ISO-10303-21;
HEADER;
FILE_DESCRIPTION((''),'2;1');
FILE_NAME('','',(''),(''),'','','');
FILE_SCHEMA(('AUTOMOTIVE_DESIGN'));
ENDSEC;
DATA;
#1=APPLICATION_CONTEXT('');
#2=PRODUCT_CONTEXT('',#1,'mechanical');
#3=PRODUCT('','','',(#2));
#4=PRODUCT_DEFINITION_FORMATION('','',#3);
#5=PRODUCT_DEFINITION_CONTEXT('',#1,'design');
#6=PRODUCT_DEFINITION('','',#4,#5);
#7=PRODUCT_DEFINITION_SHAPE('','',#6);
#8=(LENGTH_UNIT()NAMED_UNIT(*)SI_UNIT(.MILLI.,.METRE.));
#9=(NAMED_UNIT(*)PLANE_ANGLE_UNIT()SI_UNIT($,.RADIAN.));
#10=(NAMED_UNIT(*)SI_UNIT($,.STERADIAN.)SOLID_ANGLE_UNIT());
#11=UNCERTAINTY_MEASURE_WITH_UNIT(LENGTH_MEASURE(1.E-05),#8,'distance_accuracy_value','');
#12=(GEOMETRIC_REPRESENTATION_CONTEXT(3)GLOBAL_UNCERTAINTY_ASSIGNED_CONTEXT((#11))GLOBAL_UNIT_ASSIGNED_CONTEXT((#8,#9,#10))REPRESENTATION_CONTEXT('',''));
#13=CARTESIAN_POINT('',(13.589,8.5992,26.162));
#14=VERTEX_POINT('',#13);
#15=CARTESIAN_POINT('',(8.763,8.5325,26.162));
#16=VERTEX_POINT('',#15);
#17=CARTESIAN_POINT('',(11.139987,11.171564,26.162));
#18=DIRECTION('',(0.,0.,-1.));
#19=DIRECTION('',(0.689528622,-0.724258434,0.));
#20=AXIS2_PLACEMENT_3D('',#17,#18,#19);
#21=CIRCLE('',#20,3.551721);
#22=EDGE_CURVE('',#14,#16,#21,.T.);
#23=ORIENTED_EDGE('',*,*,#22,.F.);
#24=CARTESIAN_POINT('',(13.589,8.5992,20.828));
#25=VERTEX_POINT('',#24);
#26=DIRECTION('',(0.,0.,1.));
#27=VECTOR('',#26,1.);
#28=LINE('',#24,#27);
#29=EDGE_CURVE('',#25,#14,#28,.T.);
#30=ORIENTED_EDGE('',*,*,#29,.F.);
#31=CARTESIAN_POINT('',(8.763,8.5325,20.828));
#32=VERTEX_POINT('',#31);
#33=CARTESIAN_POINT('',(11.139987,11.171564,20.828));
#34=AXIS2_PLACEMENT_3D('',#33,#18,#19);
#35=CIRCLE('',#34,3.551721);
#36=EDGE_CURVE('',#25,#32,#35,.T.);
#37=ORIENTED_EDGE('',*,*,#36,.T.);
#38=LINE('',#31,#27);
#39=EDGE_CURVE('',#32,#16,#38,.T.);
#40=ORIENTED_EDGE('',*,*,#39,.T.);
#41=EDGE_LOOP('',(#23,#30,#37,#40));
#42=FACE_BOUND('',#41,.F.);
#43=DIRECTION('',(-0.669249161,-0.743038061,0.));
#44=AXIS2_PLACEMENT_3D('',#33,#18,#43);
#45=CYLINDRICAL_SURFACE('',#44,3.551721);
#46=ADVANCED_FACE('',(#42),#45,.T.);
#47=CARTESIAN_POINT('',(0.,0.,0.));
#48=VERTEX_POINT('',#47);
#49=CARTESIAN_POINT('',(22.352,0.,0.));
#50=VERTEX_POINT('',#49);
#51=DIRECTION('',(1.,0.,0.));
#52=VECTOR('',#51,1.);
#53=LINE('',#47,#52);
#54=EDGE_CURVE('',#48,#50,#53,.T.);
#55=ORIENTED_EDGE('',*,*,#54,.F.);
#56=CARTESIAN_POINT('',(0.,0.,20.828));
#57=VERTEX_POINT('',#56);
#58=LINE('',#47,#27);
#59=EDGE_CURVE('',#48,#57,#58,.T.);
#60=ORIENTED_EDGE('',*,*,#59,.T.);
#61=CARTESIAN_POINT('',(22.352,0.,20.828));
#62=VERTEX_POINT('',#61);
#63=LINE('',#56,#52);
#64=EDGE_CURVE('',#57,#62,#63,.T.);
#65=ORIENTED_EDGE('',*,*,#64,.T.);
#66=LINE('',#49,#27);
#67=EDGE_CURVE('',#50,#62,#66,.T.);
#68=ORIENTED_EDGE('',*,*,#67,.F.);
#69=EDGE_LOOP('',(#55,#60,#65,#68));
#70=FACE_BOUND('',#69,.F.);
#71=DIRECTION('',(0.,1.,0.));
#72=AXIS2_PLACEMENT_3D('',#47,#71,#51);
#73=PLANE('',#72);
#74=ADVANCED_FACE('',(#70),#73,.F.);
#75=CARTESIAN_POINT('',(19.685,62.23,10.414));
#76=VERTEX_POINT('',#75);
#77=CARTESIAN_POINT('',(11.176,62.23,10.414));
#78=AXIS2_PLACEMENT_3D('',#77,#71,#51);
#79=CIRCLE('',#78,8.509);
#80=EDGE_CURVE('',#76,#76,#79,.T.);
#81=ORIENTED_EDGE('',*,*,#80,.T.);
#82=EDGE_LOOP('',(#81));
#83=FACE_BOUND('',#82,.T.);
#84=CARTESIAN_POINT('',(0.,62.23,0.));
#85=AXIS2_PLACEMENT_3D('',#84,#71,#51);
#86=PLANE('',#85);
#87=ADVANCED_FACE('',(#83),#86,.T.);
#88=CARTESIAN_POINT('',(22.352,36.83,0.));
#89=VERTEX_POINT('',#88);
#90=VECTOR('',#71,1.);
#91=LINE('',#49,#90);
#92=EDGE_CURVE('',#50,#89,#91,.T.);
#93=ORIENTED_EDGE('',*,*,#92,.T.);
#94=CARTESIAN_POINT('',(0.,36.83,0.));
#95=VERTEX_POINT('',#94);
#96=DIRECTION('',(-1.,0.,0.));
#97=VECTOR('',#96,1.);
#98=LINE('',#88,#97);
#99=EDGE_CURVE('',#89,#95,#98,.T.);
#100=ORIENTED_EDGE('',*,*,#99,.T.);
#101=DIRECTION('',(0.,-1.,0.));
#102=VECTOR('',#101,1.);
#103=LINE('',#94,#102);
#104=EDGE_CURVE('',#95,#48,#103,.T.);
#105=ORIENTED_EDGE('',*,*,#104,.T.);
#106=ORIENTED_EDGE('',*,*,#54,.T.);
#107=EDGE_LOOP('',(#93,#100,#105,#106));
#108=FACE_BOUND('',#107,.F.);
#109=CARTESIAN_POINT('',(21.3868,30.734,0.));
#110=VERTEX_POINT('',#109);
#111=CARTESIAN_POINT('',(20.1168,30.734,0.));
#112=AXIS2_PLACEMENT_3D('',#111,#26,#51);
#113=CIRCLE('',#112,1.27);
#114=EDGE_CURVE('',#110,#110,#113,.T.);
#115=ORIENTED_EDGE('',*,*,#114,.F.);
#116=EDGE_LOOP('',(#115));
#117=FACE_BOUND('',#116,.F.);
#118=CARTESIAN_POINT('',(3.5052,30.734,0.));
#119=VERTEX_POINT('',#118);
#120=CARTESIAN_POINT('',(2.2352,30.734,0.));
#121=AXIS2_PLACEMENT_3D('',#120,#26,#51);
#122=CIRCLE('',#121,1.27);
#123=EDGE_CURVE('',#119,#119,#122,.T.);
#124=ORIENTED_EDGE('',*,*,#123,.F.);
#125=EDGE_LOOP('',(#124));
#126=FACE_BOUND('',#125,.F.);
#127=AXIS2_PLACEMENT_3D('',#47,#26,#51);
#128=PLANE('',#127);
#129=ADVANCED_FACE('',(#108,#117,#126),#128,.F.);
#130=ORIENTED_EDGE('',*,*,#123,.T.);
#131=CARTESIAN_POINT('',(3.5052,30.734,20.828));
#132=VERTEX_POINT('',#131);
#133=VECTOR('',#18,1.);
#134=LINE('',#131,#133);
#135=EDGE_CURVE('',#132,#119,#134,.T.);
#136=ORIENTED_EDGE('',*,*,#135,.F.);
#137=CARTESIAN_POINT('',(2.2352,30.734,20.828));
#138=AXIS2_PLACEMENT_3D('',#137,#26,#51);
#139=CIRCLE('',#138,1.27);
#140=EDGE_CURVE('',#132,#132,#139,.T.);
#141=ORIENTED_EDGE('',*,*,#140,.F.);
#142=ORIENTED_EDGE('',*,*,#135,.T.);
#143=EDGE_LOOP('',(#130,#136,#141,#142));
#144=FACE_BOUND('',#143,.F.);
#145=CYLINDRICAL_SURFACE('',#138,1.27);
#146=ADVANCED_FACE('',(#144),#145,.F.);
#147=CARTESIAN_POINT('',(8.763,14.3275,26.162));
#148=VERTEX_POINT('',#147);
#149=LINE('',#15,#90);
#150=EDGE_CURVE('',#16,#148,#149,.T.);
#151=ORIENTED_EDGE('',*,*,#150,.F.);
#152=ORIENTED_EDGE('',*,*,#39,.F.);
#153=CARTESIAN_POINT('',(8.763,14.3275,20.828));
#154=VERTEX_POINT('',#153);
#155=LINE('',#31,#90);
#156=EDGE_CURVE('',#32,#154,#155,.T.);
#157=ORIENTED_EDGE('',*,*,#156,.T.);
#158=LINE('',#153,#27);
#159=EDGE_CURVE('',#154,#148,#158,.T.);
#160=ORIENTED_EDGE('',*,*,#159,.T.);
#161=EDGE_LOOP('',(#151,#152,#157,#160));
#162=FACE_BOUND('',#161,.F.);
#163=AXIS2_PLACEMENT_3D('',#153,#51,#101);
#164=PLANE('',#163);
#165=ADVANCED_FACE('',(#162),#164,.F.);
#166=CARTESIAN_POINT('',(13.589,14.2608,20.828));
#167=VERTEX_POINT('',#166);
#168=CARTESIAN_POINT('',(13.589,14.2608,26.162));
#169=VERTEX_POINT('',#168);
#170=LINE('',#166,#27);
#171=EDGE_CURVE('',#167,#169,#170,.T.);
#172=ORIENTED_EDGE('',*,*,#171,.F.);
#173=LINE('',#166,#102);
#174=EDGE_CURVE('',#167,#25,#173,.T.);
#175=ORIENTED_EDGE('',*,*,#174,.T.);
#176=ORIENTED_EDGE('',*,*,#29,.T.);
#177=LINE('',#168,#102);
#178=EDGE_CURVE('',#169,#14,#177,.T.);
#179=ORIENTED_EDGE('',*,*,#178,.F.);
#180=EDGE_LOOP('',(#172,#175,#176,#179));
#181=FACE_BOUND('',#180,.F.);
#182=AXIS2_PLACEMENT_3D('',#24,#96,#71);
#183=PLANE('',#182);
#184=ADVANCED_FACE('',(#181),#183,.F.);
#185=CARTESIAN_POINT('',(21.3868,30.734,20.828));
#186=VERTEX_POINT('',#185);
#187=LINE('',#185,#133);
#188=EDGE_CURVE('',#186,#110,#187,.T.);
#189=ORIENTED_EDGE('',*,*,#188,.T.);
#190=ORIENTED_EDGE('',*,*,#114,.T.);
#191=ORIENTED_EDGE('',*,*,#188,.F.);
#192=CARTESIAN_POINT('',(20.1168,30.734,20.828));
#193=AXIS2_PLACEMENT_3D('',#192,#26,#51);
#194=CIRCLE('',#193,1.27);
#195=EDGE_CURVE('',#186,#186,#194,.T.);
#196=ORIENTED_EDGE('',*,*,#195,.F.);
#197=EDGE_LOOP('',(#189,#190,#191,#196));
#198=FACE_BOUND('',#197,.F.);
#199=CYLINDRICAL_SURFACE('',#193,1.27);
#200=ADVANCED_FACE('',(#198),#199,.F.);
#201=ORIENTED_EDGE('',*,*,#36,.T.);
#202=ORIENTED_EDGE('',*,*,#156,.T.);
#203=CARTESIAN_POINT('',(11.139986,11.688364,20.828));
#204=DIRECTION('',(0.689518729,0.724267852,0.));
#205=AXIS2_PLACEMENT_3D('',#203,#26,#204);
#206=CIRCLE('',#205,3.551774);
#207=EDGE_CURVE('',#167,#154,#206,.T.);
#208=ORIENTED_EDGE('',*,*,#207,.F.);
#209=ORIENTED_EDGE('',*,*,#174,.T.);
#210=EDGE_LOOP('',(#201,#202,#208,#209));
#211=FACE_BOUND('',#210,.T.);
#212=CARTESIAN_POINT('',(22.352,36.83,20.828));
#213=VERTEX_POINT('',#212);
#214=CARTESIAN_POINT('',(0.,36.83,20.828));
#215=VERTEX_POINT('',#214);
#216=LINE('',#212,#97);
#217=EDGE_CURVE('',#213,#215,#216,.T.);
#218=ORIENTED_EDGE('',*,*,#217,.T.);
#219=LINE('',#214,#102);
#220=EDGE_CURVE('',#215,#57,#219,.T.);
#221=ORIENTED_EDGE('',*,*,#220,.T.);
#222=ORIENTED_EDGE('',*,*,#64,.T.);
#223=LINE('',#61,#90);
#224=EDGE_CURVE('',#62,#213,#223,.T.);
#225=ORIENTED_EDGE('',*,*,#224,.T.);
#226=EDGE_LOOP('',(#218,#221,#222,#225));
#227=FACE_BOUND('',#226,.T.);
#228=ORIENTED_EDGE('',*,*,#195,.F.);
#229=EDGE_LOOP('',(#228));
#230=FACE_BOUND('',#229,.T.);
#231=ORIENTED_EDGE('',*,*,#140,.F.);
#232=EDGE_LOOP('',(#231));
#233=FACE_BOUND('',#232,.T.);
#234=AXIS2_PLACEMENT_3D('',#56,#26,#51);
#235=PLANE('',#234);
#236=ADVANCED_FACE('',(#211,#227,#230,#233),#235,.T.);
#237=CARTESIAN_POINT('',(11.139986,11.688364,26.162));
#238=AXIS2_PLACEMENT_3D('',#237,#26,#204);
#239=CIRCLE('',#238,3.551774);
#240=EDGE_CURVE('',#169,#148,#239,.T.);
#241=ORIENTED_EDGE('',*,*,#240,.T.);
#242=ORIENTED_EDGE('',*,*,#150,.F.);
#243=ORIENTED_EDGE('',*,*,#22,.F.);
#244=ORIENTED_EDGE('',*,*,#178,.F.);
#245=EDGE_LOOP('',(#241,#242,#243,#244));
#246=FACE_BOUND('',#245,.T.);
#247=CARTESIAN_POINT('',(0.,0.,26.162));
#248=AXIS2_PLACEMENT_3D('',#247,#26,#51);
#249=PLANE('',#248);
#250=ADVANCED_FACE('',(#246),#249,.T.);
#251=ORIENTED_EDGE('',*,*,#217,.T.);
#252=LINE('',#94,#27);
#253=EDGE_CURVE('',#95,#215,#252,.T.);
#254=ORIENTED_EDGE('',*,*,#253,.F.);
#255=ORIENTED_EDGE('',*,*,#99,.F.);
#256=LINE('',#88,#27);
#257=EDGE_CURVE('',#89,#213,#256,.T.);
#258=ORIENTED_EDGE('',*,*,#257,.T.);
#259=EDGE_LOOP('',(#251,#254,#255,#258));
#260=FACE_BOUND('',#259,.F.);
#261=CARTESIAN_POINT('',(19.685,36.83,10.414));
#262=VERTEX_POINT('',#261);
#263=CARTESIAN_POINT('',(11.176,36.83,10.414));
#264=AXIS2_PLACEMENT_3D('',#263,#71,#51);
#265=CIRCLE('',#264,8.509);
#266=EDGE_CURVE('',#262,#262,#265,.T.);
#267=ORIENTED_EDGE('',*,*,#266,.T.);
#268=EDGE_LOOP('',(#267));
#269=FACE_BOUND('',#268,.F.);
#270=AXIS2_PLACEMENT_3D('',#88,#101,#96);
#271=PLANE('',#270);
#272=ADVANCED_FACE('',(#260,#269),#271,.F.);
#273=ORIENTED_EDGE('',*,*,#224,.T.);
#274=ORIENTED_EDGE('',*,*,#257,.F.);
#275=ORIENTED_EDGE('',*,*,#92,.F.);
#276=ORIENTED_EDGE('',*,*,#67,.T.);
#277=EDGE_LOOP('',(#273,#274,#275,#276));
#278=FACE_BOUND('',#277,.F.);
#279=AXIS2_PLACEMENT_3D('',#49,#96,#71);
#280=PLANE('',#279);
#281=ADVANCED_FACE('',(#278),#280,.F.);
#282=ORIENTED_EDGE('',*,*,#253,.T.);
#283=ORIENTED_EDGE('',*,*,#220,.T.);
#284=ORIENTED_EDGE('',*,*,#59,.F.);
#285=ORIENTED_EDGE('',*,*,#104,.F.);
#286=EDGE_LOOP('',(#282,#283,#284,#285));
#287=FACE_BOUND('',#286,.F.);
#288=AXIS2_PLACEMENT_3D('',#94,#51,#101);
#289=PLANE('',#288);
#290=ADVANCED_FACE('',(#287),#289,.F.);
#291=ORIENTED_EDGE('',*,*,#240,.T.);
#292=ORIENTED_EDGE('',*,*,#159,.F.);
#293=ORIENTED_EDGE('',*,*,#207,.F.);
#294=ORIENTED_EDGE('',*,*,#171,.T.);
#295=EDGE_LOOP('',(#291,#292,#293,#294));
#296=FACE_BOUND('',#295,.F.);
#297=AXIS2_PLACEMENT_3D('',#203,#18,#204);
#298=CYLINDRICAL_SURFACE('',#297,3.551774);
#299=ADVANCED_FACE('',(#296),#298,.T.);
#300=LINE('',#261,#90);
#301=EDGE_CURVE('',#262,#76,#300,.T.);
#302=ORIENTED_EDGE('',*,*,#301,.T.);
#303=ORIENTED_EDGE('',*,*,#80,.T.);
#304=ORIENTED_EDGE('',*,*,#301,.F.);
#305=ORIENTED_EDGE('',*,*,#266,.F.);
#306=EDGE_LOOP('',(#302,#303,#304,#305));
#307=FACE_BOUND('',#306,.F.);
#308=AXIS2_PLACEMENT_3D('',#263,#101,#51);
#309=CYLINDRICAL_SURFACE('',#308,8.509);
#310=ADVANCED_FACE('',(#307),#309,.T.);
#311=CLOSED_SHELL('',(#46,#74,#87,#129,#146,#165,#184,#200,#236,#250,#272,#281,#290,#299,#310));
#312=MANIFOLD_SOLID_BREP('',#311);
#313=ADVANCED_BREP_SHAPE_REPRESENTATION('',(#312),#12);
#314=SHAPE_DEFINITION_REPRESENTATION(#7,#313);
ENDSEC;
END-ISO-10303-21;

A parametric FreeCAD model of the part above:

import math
import FreeCAD as App
import Part
import Sketcher

V = App.Vector
Q = App.Units.Quantity

doc = App.newDocument("Part")
body = doc.addObject("PartDesign::Body", "Body")

# Sketch on XY plane
sketch1 = doc.addObject("Sketcher::SketchObject", "Sketch")
body.addObject(sketch1)
sketch1.AttachmentSupport = (doc.XY_Plane, [""])
sketch1.MapMode = "FlatFace"
sketch1.addGeometry(Part.LineSegment(V(0, 36.83, 0), V(0, 0, 0)), False)
sketch1.addGeometry(Part.LineSegment(V(0, 0, 0), V(22.352, 0, 0)), False)
sketch1.addGeometry(Part.LineSegment(V(22.352, 0, 0), V(22.352, 36.83, 0)), False)
sketch1.addGeometry(Part.LineSegment(V(22.352, 36.83, 0), V(0, 36.83, 0)), False)
sketch1.addConstraint(Sketcher.Constraint("Coincident", 0, 2, 1, 1))
sketch1.addConstraint(Sketcher.Constraint("Coincident", 1, 2, 2, 1))
sketch1.addConstraint(Sketcher.Constraint("Coincident", 2, 2, 3, 1))
sketch1.addConstraint(Sketcher.Constraint("Coincident", 3, 2, 0, 1))
sketch1.addConstraint(Sketcher.Constraint("Vertical", 0))
sketch1.addConstraint(Sketcher.Constraint("Horizontal", 1))
sketch1.addConstraint(Sketcher.Constraint("Vertical", 2))
sketch1.addConstraint(Sketcher.Constraint("Horizontal", 3))
sketch1.addConstraint(Sketcher.Constraint("Coincident", 0, 2, -1, 1))
sketch1.addConstraint(Sketcher.Constraint("DistanceX", 1, 1, 1, 2, Q("0.88 in")))
sketch1.addConstraint(Sketcher.Constraint("DistanceY", 0, 2, 0, 1, Q("1.45 in")))
pad1 = doc.addObject("PartDesign::Pad", "Pad")
body.addObject(pad1)
pad1.Profile = sketch1
pad1.Length = Q("0.82 in")

# Sketch on XZ plane
sketch2 = doc.addObject("Sketcher::SketchObject", "Sketch001")
body.addObject(sketch2)
sketch2.AttachmentSupport = (doc.XZ_Plane, [""])
sketch2.MapMode = "FlatFace"
sketch2.AttachmentOffset = App.Placement(V(0, 0, -1.45 * 25.4), App.Rotation())
sketch2.addGeometry(Part.Circle(V(11.176, 10.414, 0), V(0, 0, 1), 8.509), False)
sketch2.addConstraint(Sketcher.Constraint("Diameter", 0, Q("0.67 in")))
sketch2.addConstraint(Sketcher.Constraint("DistanceX", -1, 1, 0, 3, Q("0.44 in")))
sketch2.addConstraint(Sketcher.Constraint("DistanceY", -1, 1, 0, 3, Q("0.41 in")))
pad2 = doc.addObject("PartDesign::Pad", "Pad001")
body.addObject(pad2)
pad2.Profile = sketch2
pad2.Length = Q("1 in")
pad2.Reversed = True

# Sketch on XY plane
sketch3 = doc.addObject("Sketcher::SketchObject", "Sketch002")
body.addObject(sketch3)
sketch3.AttachmentSupport = (doc.XY_Plane, [""])
sketch3.MapMode = "FlatFace"
sketch3.AttachmentOffset = App.Placement(V(0, 0, 0.82 * 25.4), App.Rotation())
sketch3.addGeometry(Part.Circle(V(2.2352, 30.734, 0), V(0, 0, 1), 1.27), False)
sketch3.addGeometry(Part.Circle(V(20.1168, 30.734, 0), V(0, 0, 1), 1.27), False)
sketch3.addConstraint(Sketcher.Constraint("Equal", 0, 1))
sketch3.addConstraint(Sketcher.Constraint("Horizontal", 0, 3, 1, 3))
sketch3.addConstraint(Sketcher.Constraint("Diameter", 0, Q("0.1 in")))
sketch3.addConstraint(Sketcher.Constraint("DistanceY", -1, 1, 0, 3, Q("1.21 in")))
sketch3.addConstraint(Sketcher.Constraint("DistanceX", -1, 1, 0, 3, Q("0.088 in")))
sketch3.addConstraint(Sketcher.Constraint("DistanceX", -1, 1, 1, 3, Q("0.792 in")))
pocket1 = doc.addObject("PartDesign::Pocket", "Pocket")
body.addObject(pocket1)
pocket1.Profile = sketch3
pocket1.Length = Q("1 in")

# Sketch on XY plane
sketch4 = doc.addObject("Sketcher::SketchObject", "Sketch003")
body.addObject(sketch4)
sketch4.AttachmentSupport = (doc.XY_Plane, [""])
sketch4.MapMode = "FlatFace"
sketch4.AttachmentOffset = App.Placement(V(0, 0, 0.82 * 25.4), App.Rotation())
sketch4.addGeometry(Part.ArcOfCircle(Part.Circle(V(11.14, 11.1716, 0), V(0, 0, 1), 3.551757), math.radians(-132.008915), math.radians(-46.40775)), False)
sketch4.addGeometry(Part.LineSegment(V(13.589, 8.5992, 0), V(13.589, 14.2608, 0)), False)
sketch4.addGeometry(Part.ArcOfCircle(Part.Circle(V(11.14, 11.6884, 0), V(0, 0, 1), 3.551738), math.radians(46.40775), math.radians(132.008915)), False)
sketch4.addGeometry(Part.LineSegment(V(8.763, 14.3275, 0), V(8.763, 8.5325, 0)), False)
sketch4.addConstraint(Sketcher.Constraint("Coincident", 0, 2, 1, 1))
sketch4.addConstraint(Sketcher.Constraint("Coincident", 1, 2, 2, 1))
sketch4.addConstraint(Sketcher.Constraint("Coincident", 2, 2, 3, 1))
sketch4.addConstraint(Sketcher.Constraint("Coincident", 3, 2, 0, 1))
sketch4.addConstraint(Sketcher.Constraint("Vertical", 1))
sketch4.addConstraint(Sketcher.Constraint("Vertical", 3))
sketch4.addConstraint(Sketcher.Constraint("Equal", 0, 2))
sketch4.addConstraint(Sketcher.Constraint("Vertical", 0, 3, 2, 3))
sketch4.addConstraint(Sketcher.Constraint("DistanceX", -1, 1, 2, 2, Q("0.345 in")))
sketch4.addConstraint(Sketcher.Constraint("Radius", 0, Q("3.5518 mm")))
sketch4.addConstraint(Sketcher.Constraint("DistanceX", 2, 2, 1, 2, Q("0.19 in")))
sketch4.addConstraint(Sketcher.Constraint("DistanceY", 1, 1, 1, 2, Q("0.2229 in")))
sketch4.addConstraint(Sketcher.Constraint("DistanceY", 3, 2, 3, 1, Q("5.795 mm")))
sketch4.addConstraint(Sketcher.Constraint("DistanceY", -1, 1, 0, 3, Q("11.1716 mm")))
pad3 = doc.addObject("PartDesign::Pad", "Pad002")
body.addObject(pad3)
pad3.Profile = sketch4
pad3.Length = Q("0.21 in")

doc.recompute()
